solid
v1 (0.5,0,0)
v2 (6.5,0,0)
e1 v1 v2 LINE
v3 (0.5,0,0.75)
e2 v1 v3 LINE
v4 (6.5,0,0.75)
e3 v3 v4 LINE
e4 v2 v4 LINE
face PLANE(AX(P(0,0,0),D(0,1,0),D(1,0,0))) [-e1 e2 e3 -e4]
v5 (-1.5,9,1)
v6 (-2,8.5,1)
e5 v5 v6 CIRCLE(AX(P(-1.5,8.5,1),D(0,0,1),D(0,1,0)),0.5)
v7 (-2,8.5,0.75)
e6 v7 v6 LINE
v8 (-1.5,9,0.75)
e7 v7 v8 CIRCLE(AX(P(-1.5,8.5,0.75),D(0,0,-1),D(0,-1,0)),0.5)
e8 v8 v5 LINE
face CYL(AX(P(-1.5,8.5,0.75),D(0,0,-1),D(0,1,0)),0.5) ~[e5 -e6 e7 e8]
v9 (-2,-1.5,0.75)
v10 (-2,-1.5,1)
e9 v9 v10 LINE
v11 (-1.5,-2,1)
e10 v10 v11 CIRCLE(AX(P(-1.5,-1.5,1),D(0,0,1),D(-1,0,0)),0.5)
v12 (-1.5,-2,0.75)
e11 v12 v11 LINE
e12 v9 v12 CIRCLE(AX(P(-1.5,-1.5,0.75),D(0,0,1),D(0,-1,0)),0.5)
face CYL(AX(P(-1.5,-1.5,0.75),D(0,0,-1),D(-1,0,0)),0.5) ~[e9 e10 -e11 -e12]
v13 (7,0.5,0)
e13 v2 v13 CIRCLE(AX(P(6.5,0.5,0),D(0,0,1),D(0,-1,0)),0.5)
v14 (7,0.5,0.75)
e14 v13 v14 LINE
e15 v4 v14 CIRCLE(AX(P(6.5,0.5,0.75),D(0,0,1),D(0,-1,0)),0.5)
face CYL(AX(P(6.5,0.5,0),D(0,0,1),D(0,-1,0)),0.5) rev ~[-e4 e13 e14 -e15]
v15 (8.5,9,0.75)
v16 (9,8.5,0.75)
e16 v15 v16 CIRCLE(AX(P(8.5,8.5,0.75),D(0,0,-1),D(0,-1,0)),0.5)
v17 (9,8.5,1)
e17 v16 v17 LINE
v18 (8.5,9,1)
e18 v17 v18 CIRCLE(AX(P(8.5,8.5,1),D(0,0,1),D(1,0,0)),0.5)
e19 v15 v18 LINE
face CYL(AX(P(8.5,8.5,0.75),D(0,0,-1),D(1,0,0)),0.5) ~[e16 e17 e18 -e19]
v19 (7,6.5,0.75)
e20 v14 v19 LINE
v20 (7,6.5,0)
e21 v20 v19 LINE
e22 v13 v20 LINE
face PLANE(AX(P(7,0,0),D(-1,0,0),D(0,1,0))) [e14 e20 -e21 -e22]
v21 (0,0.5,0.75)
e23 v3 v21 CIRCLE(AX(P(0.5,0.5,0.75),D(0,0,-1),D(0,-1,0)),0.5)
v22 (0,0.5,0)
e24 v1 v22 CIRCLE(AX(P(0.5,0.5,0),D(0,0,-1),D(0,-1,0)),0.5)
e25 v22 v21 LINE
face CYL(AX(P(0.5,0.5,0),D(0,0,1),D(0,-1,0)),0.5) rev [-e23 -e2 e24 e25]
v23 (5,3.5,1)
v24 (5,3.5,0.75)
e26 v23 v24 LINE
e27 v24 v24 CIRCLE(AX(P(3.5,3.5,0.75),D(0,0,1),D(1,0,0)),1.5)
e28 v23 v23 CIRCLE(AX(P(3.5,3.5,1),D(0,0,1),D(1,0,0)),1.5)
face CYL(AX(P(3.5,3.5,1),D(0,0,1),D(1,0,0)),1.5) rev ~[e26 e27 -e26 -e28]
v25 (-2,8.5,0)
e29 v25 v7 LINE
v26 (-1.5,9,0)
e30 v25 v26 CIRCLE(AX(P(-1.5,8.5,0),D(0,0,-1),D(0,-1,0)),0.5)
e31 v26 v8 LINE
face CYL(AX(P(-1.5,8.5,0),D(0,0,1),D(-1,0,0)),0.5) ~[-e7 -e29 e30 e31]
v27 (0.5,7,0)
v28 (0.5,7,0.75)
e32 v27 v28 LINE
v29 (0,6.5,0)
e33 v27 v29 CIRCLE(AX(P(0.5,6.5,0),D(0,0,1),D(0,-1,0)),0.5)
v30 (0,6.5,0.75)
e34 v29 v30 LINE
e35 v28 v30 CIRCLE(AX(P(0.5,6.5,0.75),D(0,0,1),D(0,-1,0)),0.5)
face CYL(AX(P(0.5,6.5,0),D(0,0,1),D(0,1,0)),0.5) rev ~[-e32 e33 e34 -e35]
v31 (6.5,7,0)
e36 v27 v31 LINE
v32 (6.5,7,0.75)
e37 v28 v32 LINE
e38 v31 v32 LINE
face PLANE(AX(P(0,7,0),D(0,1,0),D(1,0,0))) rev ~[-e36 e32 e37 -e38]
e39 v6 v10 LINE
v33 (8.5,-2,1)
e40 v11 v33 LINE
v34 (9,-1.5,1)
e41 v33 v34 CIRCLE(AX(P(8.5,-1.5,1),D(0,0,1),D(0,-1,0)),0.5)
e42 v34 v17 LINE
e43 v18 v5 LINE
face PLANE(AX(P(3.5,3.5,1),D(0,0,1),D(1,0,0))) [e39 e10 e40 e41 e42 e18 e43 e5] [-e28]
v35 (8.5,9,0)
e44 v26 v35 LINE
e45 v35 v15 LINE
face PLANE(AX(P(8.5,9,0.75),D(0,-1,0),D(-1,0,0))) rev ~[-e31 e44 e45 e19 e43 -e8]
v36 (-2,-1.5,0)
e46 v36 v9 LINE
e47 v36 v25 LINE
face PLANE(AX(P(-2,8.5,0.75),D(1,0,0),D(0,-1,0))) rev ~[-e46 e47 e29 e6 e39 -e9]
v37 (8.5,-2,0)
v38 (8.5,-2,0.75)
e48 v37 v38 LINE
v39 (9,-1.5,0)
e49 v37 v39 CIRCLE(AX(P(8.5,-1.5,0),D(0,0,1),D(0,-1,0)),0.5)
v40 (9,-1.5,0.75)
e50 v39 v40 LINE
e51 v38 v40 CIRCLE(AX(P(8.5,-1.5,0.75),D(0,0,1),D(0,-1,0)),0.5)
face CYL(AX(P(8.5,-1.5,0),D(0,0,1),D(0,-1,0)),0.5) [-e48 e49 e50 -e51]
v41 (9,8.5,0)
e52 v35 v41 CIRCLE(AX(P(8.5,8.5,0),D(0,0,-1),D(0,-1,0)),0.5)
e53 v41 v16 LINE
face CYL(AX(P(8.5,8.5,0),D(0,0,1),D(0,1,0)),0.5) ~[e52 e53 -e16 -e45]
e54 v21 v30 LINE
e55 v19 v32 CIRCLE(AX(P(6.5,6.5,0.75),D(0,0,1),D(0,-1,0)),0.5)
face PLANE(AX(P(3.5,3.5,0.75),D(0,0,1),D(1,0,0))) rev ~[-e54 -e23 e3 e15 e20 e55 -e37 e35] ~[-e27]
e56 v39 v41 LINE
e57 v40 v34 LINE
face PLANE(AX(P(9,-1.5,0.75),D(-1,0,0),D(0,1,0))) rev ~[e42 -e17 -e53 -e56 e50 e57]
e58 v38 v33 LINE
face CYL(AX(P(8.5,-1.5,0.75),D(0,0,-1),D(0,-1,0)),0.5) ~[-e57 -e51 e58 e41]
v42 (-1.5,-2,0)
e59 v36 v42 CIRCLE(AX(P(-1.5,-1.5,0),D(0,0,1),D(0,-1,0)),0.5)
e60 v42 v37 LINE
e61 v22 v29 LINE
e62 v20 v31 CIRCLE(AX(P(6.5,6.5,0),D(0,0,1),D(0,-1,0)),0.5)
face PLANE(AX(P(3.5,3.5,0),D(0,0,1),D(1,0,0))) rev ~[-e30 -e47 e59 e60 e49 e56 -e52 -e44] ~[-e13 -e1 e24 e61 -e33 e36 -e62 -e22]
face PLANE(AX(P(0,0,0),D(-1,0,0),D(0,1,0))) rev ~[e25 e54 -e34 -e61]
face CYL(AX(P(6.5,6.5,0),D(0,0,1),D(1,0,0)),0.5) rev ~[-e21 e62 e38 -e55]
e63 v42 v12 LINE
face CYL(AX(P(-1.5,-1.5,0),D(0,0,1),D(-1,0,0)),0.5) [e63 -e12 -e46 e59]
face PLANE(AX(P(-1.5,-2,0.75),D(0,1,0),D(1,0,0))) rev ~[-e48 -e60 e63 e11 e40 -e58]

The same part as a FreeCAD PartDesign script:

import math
import FreeCAD as App
import Part
import Sketcher
Q = App.Units.Quantity


def edges_at(feature, points):
    """Names of the edges that pass closest to the given points."""
    edges = feature.Shape.Edges
    near = lambda p: min(range(len(edges)), key=lambda i: edges[i].distToShape(Part.Vertex(*p))[0])
    return sorted({f"Edge{near(p) + 1}" for p in points})

doc = App.newDocument("Part")
params = doc.addObject("Spreadsheet::Sheet", "Params")
for row, (alias, value) in enumerate([
    ("sketch1_width", "11 mm"),
    ("sketch1_width2", "7 mm"),
    ("pad1_length", "0.75 mm"),
    ("fillet_radius", "0.5 mm"),
    ("sketch2_radius", "0.5 mm"),
    ("sketch2_width", "10 mm"),
    ("pad2_length", "0.25 mm"),
    ("sketch3_diameter", "3 mm"),
], start=1):
    params.set(f"A{row}", alias)
    params.set(f"B{row}", "=" + value)
    params.setAlias(f"B{row}", alias)

body = doc.addObject("PartDesign::Body", "Body")

# Sketch on XY plane
sketch1 = body.newObject("Sketcher::SketchObject", "Sketch")
sketch1.AttachmentSupport = (doc.getObject("XY_Plane"), [""])
sketch1.MapMode = "FlatFace"
sketch1.addGeometry(Part.LineSegment(App.Vector(-2, 9, 0), App.Vector(-2, -2, 0)), False)
sketch1.addGeometry(Part.LineSegment(App.Vector(-2, -2, 0), App.Vector(9, -2, 0)), False)
sketch1.addGeometry(Part.LineSegment(App.Vector(9, -2, 0), App.Vector(9, 9, 0)), False)
sketch1.addGeometry(Part.LineSegment(App.Vector(9, 9, 0), App.Vector(-2, 9, 0)), False)
sketch1.addGeometry(Part.LineSegment(App.Vector(7, 0, 0), App.Vector(0, 0, 0)), False)
sketch1.addGeometry(Part.LineSegment(App.Vector(0, 0, 0), App.Vector(0, 7, 0)), False)
sketch1.addGeometry(Part.LineSegment(App.Vector(0, 7, 0), App.Vector(7, 7, 0)), False)
sketch1.addGeometry(Part.LineSegment(App.Vector(7, 7, 0), App.Vector(7, 0, 0)), False)
sketch1.addConstraint(Sketcher.Constraint("Coincident", 0, 2, 1, 1))
sketch1.addConstraint(Sketcher.Constraint("Coincident", 1, 2, 2, 1))
sketch1.addConstraint(Sketcher.Constraint("Coincident", 2, 2, 3, 1))
sketch1.addConstraint(Sketcher.Constraint("Coincident", 3, 2, 0, 1))
sketch1.addConstraint(Sketcher.Constraint("Coincident", 4, 2, 5, 1))
sketch1.addConstraint(Sketcher.Constraint("Coincident", 5, 2, 6, 1))
sketch1.addConstraint(Sketcher.Constraint("Coincident", 6, 2, 7, 1))
sketch1.addConstraint(Sketcher.Constraint("Coincident", 7, 2, 4, 1))
sketch1.addConstraint(Sketcher.Constraint("Vertical", 0))
sketch1.addConstraint(Sketcher.Constraint("Horizontal", 1))
sketch1.addConstraint(Sketcher.Constraint("Vertical", 2))
sketch1.addConstraint(Sketcher.Constraint("Horizontal", 3))
sketch1.addConstraint(Sketcher.Constraint("Horizontal", 4))
sketch1.addConstraint(Sketcher.Constraint("Vertical", 5))
sketch1.addConstraint(Sketcher.Constraint("Horizontal", 6))
sketch1.addConstraint(Sketcher.Constraint("Vertical", 7))
sketch1.addConstraint(Sketcher.Constraint("Coincident", 4, 2, -1, 1))
sketch1.addConstraint(Sketcher.Constraint("Equal", 3, 0))
sketch1.addConstraint(Sketcher.Constraint("Equal", 6, 5))
sketch1.addConstraint(Sketcher.Constraint("DistanceX", 1, 1, 1, 2, Q("11 mm")))
sketch1.addConstraint(Sketcher.Constraint("DistanceX", 4, 2, 4, 1, Q("7 mm")))
sketch1.addConstraint(Sketcher.Constraint("DistanceX", 0, 2, -1, 1, Q("2 mm")))
sketch1.addConstraint(Sketcher.Constraint("DistanceY", 0, 2, -1, 1, Q("2 mm")))
sketch1.setExpression("Constraints[19]", "Params.sketch1_width")
sketch1.setExpression("Constraints[20]", "Params.sketch1_width2")
pad1 = body.newObject("PartDesign::Pad", "Pad")
pad1.Profile = sketch1
pad1.setExpression("Length", "Params.pad1_length")
doc.recompute()

fillet = body.newObject("PartDesign::Fillet", "Fillet")
fillet.Base = (pad1, edges_at(pad1, [
    (0, 7, 0.375),
    (7, 7, 0.375),
    (9, 9, 0.375),
    (-2, 9, 0.375),
    (-2, -2, 0.375),
    (9, -2, 0.375),
    (0, 0, 0.375),
    (7, 0, 0.375),
]))
fillet.setExpression("Radius", "Params.fillet_radius")

# Sketch on XY plane
sketch2 = body.newObject("Sketcher::SketchObject", "Sketch001")
sketch2.AttachmentSupport = (doc.getObject("XY_Plane"), [""])
sketch2.MapMode = "FlatFace"
sketch2.AttachmentOffset = App.Placement(App.Vector(0, 0, 0.75), App.Rotation())
sketch2.addGeometry(Part.ArcOfCircle(Part.Circle(App.Vector(-1.5, -1.5, 0), App.Vector(0, 0, 1), 0.5), math.radians(180), math.radians(270)), False)
sketch2.addGeometry(Part.LineSegment(App.Vector(-1.5, -2, 0), App.Vector(8.5, -2, 0)), False)
sketch2.addGeometry(Part.ArcOfCircle(Part.Circle(App.Vector(8.5, -1.5, 0), App.Vector(0, 0, 1), 0.5), math.radians(-90), math.radians(0)), False)
sketch2.addGeometry(Part.LineSegment(App.Vector(9, -1.5, 0), App.Vector(9, 8.5, 0)), False)
sketch2.addGeometry(Part.ArcOfCircle(Part.Circle(App.Vector(8.5, 8.5, 0), App.Vector(0, 0, 1), 0.5), math.radians(0), math.radians(90)), False)
sketch2.addGeometry(Part.LineSegment(App.Vector(8.5, 9, 0), App.Vector(-1.5, 9, 0)), False)
sketch2.addGeometry(Part.ArcOfCircle(Part.Circle(App.Vector(-1.5, 8.5, 0), App.Vector(0, 0, 1), 0.5), math.radians(90), math.radians(180)), False)
sketch2.addGeometry(Part.LineSegment(App.Vector(-2, 8.5, 0), App.Vector(-2, -1.5, 0)), False)
sketch2.addConstraint(Sketcher.Constraint("Tangent", 0, 2, 1, 1))
sketch2.addConstraint(Sketcher.Constraint("Tangent", 1, 2, 2, 1))
sketch2.addConstraint(Sketcher.Constraint("Tangent", 2, 2, 3, 1))
sketch2.addConstraint(Sketcher.Constraint("Tangent", 3, 2, 4, 1))
sketch2.addConstraint(Sketcher.Constraint("Tangent", 4, 2, 5, 1))
sketch2.addConstraint(Sketcher.Constraint("Tangent", 5, 2, 6, 1))
sketch2.addConstraint(Sketcher.Constraint("Tangent", 6, 2, 7, 1))
sketch2.addConstraint(Sketcher.Constraint("Tangent", 7, 2, 0, 1))
sketch2.addConstraint(Sketcher.Constraint("Horizontal", 1))
sketch2.addConstraint(Sketcher.Constraint("Vertical", 3))
sketch2.addConstraint(Sketcher.Constraint("Horizontal", 5))
sketch2.addConstraint(Sketcher.Constraint("Vertical", 7))
sketch2.addConstraint(Sketcher.Constraint("Equal", 0, 2))
sketch2.addConstraint(Sketcher.Constraint("Equal", 2, 4))
sketch2.addConstraint(Sketcher.Constraint("Equal", 4, 6))
sketch2.addConstraint(Sketcher.Constraint("Equal", 5, 3))
sketch2.addConstraint(Sketcher.Constraint("Radius", 0, Q("0.5 mm")))
sketch2.addConstraint(Sketcher.Constraint("DistanceX", 1, 1, 1, 2, Q("10 mm")))
sketch2.addConstraint(Sketcher.Constraint("DistanceY", 0, 2, -1, 1, Q("2 mm")))
sketch2.addConstraint(Sketcher.Constraint("DistanceX", -1, 1, 2, 2, Q("9 mm")))
sketch2.setExpression("Constraints[16]", "Params.sketch2_radius")
sketch2.setExpression("Constraints[17]", "Params.sketch2_width")
pad2 = body.newObject("PartDesign::Pad", "Pad001")
pad2.Profile = sketch2
pad2.setExpression("Length", "Params.pad2_length")

# Sketch on XY plane
sketch3 = body.newObject("Sketcher::SketchObject", "Sketch002")
sketch3.AttachmentSupport = (doc.getObject("XY_Plane"), [""])
sketch3.MapMode = "FlatFace"
sketch3.AttachmentOffset = App.Placement(App.Vector(0, 0, 1), App.Rotation())
sketch3.addGeometry(Part.Circle(App.Vector(3.5, 3.5, 0), App.Vector(0, 0, 1), 1.5), False)
sketch3.addConstraint(Sketcher.Constraint("Diameter", 0, Q("3 mm")))
sketch3.addConstraint(Sketcher.Constraint("DistanceX", -1, 1, 0, 3, Q("3.5 mm")))
sketch3.addConstraint(Sketcher.Constraint("DistanceY", -1, 1, 0, 3, Q("3.5 mm")))
sketch3.setExpression("Constraints[0]", "Params.sketch3_diameter")
pocket1 = body.newObject("PartDesign::Pocket", "Pocket")
pocket1.Profile = sketch3
pocket1.Type = "ThroughAll"

doc.recompute()
